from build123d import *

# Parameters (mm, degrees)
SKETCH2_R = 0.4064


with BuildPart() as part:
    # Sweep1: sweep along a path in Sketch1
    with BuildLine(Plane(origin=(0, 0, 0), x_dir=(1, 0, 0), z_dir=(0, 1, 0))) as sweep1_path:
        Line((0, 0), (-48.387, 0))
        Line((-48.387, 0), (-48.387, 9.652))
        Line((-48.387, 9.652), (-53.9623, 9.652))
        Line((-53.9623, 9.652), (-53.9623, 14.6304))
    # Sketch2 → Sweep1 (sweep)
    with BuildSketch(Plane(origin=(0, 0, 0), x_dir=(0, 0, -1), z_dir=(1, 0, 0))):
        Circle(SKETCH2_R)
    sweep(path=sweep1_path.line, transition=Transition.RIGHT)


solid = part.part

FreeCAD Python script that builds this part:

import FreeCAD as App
import Part
import Sketcher
Q = App.Units.Quantity

doc = App.newDocument("Part")
body = doc.addObject("PartDesign::Body", "Body")

# Sketch on YZ plane
sketch1 = doc.addObject("Sketcher::SketchObject", "Sketch")
body.addObject(sketch1)
sketch1.AttachmentSupport = (doc.YZ_Plane, [""])
sketch1.MapMode = "FlatFace"
sketch1.addGeometry(Part.Circle(App.Vector(0, 0, 0), App.Vector(0, 0, 1), 0.4064), False)
sketch1.addConstraint([
    Sketcher.Constraint("Coincident", 0, 3, -1, 1),
    Sketcher.Constraint("Diameter", 0, Q("0.032 in")),
])

# Sketch on XZ plane
sketch2 = doc.addObject("Sketcher::SketchObject", "Sketch001")
body.addObject(sketch2)
sketch2.AttachmentSupport = (doc.XZ_Plane, [""])
sketch2.MapMode = "FlatFace"
sketch2.addGeometry([
    Part.LineSegment(App.Vector(0, 0, 0), App.Vector(-48.387, 0, 0)),
    Part.LineSegment(App.Vector(-48.387, 0, 0), App.Vector(-48.387, -9.652, 0)),
    Part.LineSegment(App.Vector(-48.387, -9.652, 0), App.Vector(-53.9623, -9.652, 0)),
    Part.LineSegment(App.Vector(-53.9623, -9.652, 0), App.Vector(-53.9623, -14.6304, 0)),
], False)
sketch2.addConstraint([
    Sketcher.Constraint("Coincident", 0, 2, 1, 1),
    Sketcher.Constraint("Coincident", 1, 2, 2, 1),
    Sketcher.Constraint("Coincident", 2, 2, 3, 1),
    Sketcher.Constraint("Horizontal", 0),
    Sketcher.Constraint("Vertical", 1),
    Sketcher.Constraint("Horizontal", 2),
    Sketcher.Constraint("Vertical", 3),
    Sketcher.Constraint("Coincident", 0, 1, -1, 1),
    Sketcher.Constraint("DistanceY", 1, 2, 1, 1, Q("0.38 in")),
    Sketcher.Constraint("DistanceX", 0, 2, 0, 1, Q("1.905 in")),
    Sketcher.Constraint("DistanceY", 3, 2, 3, 1, Q("0.196 in")),
    Sketcher.Constraint("DistanceX", 2, 2, 2, 1, Q("0.2195 in")),
])
doc.recompute()

additivepipe = doc.addObject("PartDesign::AdditivePipe", "AdditivePipe")
body.addObject(additivepipe)
additivepipe.Profile = sketch1
additivepipe.Spine = (sketch2, ["Edge1", "Edge2", "Edge3", "Edge4"])
additivepipe.Transition = "Right corner"

doc.recompute()
